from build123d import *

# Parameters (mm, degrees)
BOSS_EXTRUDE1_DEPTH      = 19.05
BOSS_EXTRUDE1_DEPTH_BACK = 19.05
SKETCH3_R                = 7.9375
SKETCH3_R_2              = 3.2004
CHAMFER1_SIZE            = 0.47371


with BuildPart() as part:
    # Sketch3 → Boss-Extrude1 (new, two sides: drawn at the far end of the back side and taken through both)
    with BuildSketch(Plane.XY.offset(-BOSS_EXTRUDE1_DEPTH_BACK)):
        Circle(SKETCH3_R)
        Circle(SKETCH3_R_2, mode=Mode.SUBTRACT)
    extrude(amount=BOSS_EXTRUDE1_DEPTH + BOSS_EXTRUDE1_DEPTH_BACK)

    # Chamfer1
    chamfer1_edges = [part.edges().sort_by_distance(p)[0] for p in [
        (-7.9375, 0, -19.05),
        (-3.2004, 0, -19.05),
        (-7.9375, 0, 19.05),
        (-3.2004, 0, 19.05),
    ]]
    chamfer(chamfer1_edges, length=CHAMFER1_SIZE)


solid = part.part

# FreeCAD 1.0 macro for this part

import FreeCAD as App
import Part
import Sketcher
from FreeCAD import Vector
Q = App.Units.Quantity


def edges_at(feature, points):
    """Names of the edges that pass closest to the given points."""
    edges = feature.Shape.Edges
    near = lambda p: min(range(len(edges)), key=lambda i: edges[i].distToShape(Part.Vertex(*p))[0])
    return sorted({f"Edge{near(p) + 1}" for p in points})

doc = App.newDocument("Part")
body = doc.addObject("PartDesign::Body", "Body")

sketch1 = doc.addObject("Sketcher::SketchObject", "Sketch")
body.addObject(sketch1)
sketch1.AttachmentSupport = (doc.XY_Plane, [""])
sketch1.MapMode = "FlatFace"
sketch1.addGeometry(Part.Circle(Vector(0, 0, 0), Vector(0, 0, 1), 7.9), False)
sketch1.addGeometry(Part.Circle(Vector(0, 0, 0), Vector(0, 0, 1), 3.2), False)
sketch1.addConstraint(Sketcher.Constraint("Coincident", 0, 3, -1, 1))
sketch1.addConstraint(Sketcher.Constraint("Coincident", 1, 3, -1, 1))
sketch1.addConstraint(Sketcher.Constraint("Diameter", 0, Q("0.625 in")))
sketch1.addConstraint(Sketcher.Constraint("Diameter", 1, Q("0.252 in")))
pad1 = doc.addObject("PartDesign::Pad", "Pad")
body.addObject(pad1)
pad1.Profile = sketch1
pad1.Type = "TwoLengths"
pad1.Length = Q("0.75 in")
pad1.Length2 = Q("0.75 in")
doc.recompute()

chamfer = doc.addObject("PartDesign::Chamfer", "Chamfer")
body.addObject(chamfer)
chamfer.Base = (pad1, edges_at(pad1, [
    (-7.938, 0, -19.05),
    (-3.2, 0, -19.05),
    (-7.938, 0, 19.05),
    (-3.2, 0, 19.05),
]))
chamfer.Size = 0.47371

doc.recompute()
